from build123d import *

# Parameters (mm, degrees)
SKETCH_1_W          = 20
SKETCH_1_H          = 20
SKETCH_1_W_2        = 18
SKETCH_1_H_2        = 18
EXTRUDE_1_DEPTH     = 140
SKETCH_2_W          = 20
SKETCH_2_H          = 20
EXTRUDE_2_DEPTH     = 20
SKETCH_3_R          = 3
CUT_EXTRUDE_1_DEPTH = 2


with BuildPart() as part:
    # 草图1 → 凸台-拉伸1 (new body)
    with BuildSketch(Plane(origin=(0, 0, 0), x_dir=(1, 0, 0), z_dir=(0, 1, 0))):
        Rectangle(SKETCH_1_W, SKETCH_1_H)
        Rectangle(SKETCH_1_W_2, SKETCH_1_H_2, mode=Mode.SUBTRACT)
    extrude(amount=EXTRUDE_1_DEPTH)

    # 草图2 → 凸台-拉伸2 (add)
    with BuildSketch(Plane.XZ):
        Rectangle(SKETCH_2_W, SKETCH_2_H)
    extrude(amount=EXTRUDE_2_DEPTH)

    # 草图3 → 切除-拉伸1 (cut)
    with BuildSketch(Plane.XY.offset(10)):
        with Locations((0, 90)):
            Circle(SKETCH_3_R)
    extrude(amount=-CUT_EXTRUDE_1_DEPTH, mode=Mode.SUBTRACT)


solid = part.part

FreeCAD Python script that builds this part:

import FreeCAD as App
import Part
import Sketcher

V = App.Vector

doc = App.newDocument("Part")
body = doc.addObject("PartDesign::Body", "Body")

sketch1 = body.newObject("Sketcher::SketchObject", "Sketch")
sketch1.AttachmentSupport = (doc.getObject("XZ_Plane"), [""])
sketch1.MapMode = "FlatFace"
sketch1.addGeometry([
    Part.LineSegment(V(-10, -10, 0), V(-10, 10, 0)),
    Part.LineSegment(V(-10, 10, 0), V(10, 10, 0)),
    Part.LineSegment(V(10, 10, 0), V(10, -10, 0)),
    Part.LineSegment(V(10, -10, 0), V(-10, -10, 0)),
    Part.LineSegment(V(9, 9, 0), V(-9, 9, 0)),
    Part.LineSegment(V(-9, 9, 0), V(-9, -9, 0)),
    Part.LineSegment(V(-9, -9, 0), V(9, -9, 0)),
    Part.LineSegment(V(9, -9, 0), V(9, 9, 0)),
], False)
sketch1.addConstraint([
    Sketcher.Constraint("Coincident", 0, 2, 1, 1),
    Sketcher.Constraint("Coincident", 1, 2, 2, 1),
    Sketcher.Constraint("Coincident", 2, 2, 3, 1),
    Sketcher.Constraint("Coincident", 3, 2, 0, 1),
    Sketcher.Constraint("Coincident", 4, 2, 5, 1),
    Sketcher.Constraint("Coincident", 5, 2, 6, 1),
    Sketcher.Constraint("Coincident", 6, 2, 7, 1),
    Sketcher.Constraint("Coincident", 7, 2, 4, 1),
    Sketcher.Constraint("Vertical", 0),
    Sketcher.Constraint("Horizontal", 1),
    Sketcher.Constraint("Vertical", 2),
    Sketcher.Constraint("Horizontal", 3),
    Sketcher.Constraint("Horizontal", 4),
    Sketcher.Constraint("Vertical", 5),
    Sketcher.Constraint("Horizontal", 6),
    Sketcher.Constraint("Vertical", 7),
    Sketcher.Constraint("Symmetric", 0, 2, 2, 2, -1, 1),
    Sketcher.Constraint("Symmetric", 4, 2, 6, 2, -1, 1),
    Sketcher.Constraint("Equal", 3, 0),
    Sketcher.Constraint("Equal", 6, 5),
    Sketcher.Constraint("DistanceX", 1, 1, 1, 2, 20.0),
    Sketcher.Constraint("DistanceX", 4, 2, 4, 1, 18.0),
])
pad1 = body.newObject("PartDesign::Pad", "Pad")
pad1.Profile = sketch1
pad1.Length = 140
pad1.Reversed = True

sketch2 = body.newObject("Sketcher::SketchObject", "Sketch001")
sketch2.AttachmentSupport = (doc.getObject("XZ_Plane"), [""])
sketch2.MapMode = "FlatFace"
sketch2.addGeometry([
    Part.LineSegment(V(-10, 10, 0), V(-10, -10, 0)),
    Part.LineSegment(V(-10, -10, 0), V(10, -10, 0)),
    Part.LineSegment(V(10, -10, 0), V(10, 10, 0)),
    Part.LineSegment(V(10, 10, 0), V(-10, 10, 0)),
], False)
sketch2.addConstraint([
    Sketcher.Constraint("Coincident", 0, 2, 1, 1),
    Sketcher.Constraint("Coincident", 1, 2, 2, 1),
    Sketcher.Constraint("Coincident", 2, 2, 3, 1),
    Sketcher.Constraint("Coincident", 3, 2, 0, 1),
    Sketcher.Constraint("Vertical", 0),
    Sketcher.Constraint("Horizontal", 1),
    Sketcher.Constraint("Vertical", 2),
    Sketcher.Constraint("Horizontal", 3),
    Sketcher.Constraint("Symmetric", 0, 2, 2, 2, -1, 1),
    Sketcher.Constraint("Equal", 3, 0),
    Sketcher.Constraint("DistanceX", 1, 1, 1, 2, 20.0),
])
pad2 = body.newObject("PartDesign::Pad", "Pad001")
pad2.Profile = sketch2
pad2.Length = 20

sketch3 = body.newObject("Sketcher::SketchObject", "Sketch002")
sketch3.AttachmentSupport = (doc.getObject("XY_Plane"), [""])
sketch3.MapMode = "FlatFace"
sketch3.AttachmentOffset = App.Placement(V(0, 0, 10), App.Rotation())
sketch3.addGeometry(Part.Circle(V(0, 90, 0), V(0, 0, 1), 3), False)
sketch3.addConstraint([
    Sketcher.Constraint("PointOnObject", 0, 3, -2),
    Sketcher.Constraint("Diameter", 0, 6.0),
    Sketcher.Constraint("DistanceY", -1, 1, 0, 3, 90.0),
])
pocket1 = body.newObject("PartDesign::Pocket", "Pocket")
pocket1.Profile = sketch3
pocket1.Length = 2

doc.recompute()
